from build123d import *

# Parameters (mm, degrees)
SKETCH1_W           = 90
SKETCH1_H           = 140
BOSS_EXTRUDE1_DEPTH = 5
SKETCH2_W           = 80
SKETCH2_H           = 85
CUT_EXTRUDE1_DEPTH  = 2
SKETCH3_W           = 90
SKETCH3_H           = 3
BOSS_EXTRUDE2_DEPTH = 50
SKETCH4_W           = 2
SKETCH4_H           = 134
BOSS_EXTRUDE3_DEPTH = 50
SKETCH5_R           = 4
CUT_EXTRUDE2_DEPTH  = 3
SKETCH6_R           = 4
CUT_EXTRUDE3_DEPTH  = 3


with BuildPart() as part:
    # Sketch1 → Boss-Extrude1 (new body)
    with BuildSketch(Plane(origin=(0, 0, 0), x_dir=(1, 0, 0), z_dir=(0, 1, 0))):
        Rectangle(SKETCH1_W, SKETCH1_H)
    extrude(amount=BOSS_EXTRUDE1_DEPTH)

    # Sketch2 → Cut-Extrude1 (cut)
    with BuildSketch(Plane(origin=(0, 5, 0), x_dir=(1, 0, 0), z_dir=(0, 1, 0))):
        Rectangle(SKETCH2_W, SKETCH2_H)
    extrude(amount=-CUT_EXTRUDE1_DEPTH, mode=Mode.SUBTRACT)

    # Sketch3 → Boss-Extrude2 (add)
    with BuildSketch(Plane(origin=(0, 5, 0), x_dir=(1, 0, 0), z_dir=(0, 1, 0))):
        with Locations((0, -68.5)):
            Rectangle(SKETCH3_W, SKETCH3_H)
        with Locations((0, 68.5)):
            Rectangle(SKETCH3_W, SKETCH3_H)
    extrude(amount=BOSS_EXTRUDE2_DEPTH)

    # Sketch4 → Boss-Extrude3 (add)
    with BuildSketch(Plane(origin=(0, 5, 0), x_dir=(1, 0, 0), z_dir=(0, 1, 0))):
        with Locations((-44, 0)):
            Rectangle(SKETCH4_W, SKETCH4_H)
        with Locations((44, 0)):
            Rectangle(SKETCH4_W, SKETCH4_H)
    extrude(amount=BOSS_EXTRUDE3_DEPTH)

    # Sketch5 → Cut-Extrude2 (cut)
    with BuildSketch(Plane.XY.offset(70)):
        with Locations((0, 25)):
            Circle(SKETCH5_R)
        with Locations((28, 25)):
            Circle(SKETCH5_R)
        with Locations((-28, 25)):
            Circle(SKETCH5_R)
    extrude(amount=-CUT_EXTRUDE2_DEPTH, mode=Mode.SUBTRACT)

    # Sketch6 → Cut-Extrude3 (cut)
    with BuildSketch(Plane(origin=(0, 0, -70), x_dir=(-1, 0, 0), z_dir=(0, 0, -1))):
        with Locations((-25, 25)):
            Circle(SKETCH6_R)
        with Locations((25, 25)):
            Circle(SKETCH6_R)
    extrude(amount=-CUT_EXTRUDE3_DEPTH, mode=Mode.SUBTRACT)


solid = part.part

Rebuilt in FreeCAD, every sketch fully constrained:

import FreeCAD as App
import Part
import Sketcher

V = App.Vector

doc = App.newDocument("Part")
body = doc.addObject("PartDesign::Body", "Body")

# Sketch on XZ plane
sketch1 = doc.addObject("Sketcher::SketchObject", "Sketch")
body.addObject(sketch1)
sketch1.AttachmentSupport = (doc.XZ_Plane, [""])
sketch1.MapMode = "FlatFace"
sketch1.addGeometry([
    Part.LineSegment(V(-45, -70, 0), V(-45, 70, 0)),
    Part.LineSegment(V(-45, 70, 0), V(45, 70, 0)),
    Part.LineSegment(V(45, 70, 0), V(45, -70, 0)),
    Part.LineSegment(V(45, -70, 0), V(-45, -70, 0)),
], False)
sketch1.addConstraint([
    Sketcher.Constraint("Coincident", 0, 2, 1, 1),
    Sketcher.Constraint("Coincident", 1, 2, 2, 1),
    Sketcher.Constraint("Coincident", 2, 2, 3, 1),
    Sketcher.Constraint("Coincident", 3, 2, 0, 1),
    Sketcher.Constraint("Vertical", 0),
    Sketcher.Constraint("Horizontal", 1),
    Sketcher.Constraint("Vertical", 2),
    Sketcher.Constraint("Horizontal", 3),
    Sketcher.Constraint("Symmetric", 0, 2, 2, 2, -1, 1),
    Sketcher.Constraint("DistanceX", 1, 1, 1, 2, 90.0),
    Sketcher.Constraint("DistanceY", 0, 1, 0, 2, 140.0),
])
pad1 = doc.addObject("PartDesign::Pad", "Pad")
body.addObject(pad1)
pad1.Profile = sketch1
pad1.Length = 5
pad1.Reversed = True

# Sketch on XZ plane
sketch2 = doc.addObject("Sketcher::SketchObject", "Sketch001")
body.addObject(sketch2)
sketch2.AttachmentSupport = (doc.XZ_Plane, [""])
sketch2.MapMode = "FlatFace"
sketch2.AttachmentOffset = App.Placement(V(0, 0, -5), App.Rotation())
sketch2.addGeometry([
    Part.LineSegment(V(-40, -42, 0), V(-40, 42, 0)),
    Part.LineSegment(V(-40, 42, 0), V(40, 42, 0)),
    Part.LineSegment(V(40, 42, 0), V(40, -42, 0)),
    Part.LineSegment(V(40, -42, 0), V(-40, -42, 0)),
], False)
sketch2.addConstraint([
    Sketcher.Constraint("Coincident", 0, 2, 1, 1),
    Sketcher.Constraint("Coincident", 1, 2, 2, 1),
    Sketcher.Constraint("Coincident", 2, 2, 3, 1),
    Sketcher.Constraint("Coincident", 3, 2, 0, 1),
    Sketcher.Constraint("Vertical", 0),
    Sketcher.Constraint("Horizontal", 1),
    Sketcher.Constraint("Vertical", 2),
    Sketcher.Constraint("Horizontal", 3),
    Sketcher.Constraint("Symmetric", 0, 2, 2, 2, -1, 1),
    Sketcher.Constraint("DistanceX", 1, 1, 1, 2, 80.0),
    Sketcher.Constraint("DistanceY", 0, 1, 0, 2, 85.0),
])
pocket1 = doc.addObject("PartDesign::Pocket", "Pocket")
body.addObject(pocket1)
pocket1.Profile = sketch2
pocket1.Length = 2
pocket1.Reversed = True

# Sketch on XZ plane
sketch3 = doc.addObject("Sketcher::SketchObject", "Sketch002")
body.addObject(sketch3)
sketch3.AttachmentSupport = (doc.XZ_Plane, [""])
sketch3.MapMode = "FlatFace"
sketch3.AttachmentOffset = App.Placement(V(0, 0, -5), App.Rotation())
sketch3.addGeometry([
    Part.LineSegment(V(-45, 67, 0), V(-45, 70, 0)),  # 0
    Part.LineSegment(V(-45, 70, 0), V(45, 70, 0)),  # 1
    Part.LineSegment(V(45, 70, 0), V(45, 67, 0)),  # 2
    Part.LineSegment(V(45, 67, 0), V(-45, 67, 0)),  # 3
    Part.LineSegment(V(-45, -70, 0), V(-45, -67, 0)),  # 4
    Part.LineSegment(V(-45, -67, 0), V(45, -67, 0)),  # 5
    Part.LineSegment(V(45, -67, 0), V(45, -70, 0)),  # 6
    Part.LineSegment(V(45, -70, 0), V(-45, -70, 0)),  # 7
], False)
sketch3.addConstraint([
    Sketcher.Constraint("Coincident", 0, 2, 1, 1),
    Sketcher.Constraint("Coincident", 1, 2, 2, 1),
    Sketcher.Constraint("Coincident", 2, 2, 3, 1),
    Sketcher.Constraint("Coincident", 3, 2, 0, 1),
    Sketcher.Constraint("Coincident", 4, 2, 5, 1),
    Sketcher.Constraint("Coincident", 5, 2, 6, 1),
    Sketcher.Constraint("Coincident", 6, 2, 7, 1),
    Sketcher.Constraint("Coincident", 7, 2, 4, 1),
    Sketcher.Constraint("Vertical", 0),
    Sketcher.Constraint("Horizontal", 1),
    Sketcher.Constraint("Vertical", 2),
    Sketcher.Constraint("Horizontal", 3),
    Sketcher.Constraint("Vertical", 4),
    Sketcher.Constraint("Horizontal", 5),
    Sketcher.Constraint("Vertical", 6),
    Sketcher.Constraint("Horizontal", 7),
    Sketcher.Constraint("Symmetric", 2, 2, 4, 2, -1, 1),
    Sketcher.Constraint("Symmetric", 0, 2, 6, 2, -1, 1),
    Sketcher.Constraint("Vertical", 3, 2, 4, 2),
    Sketcher.Constraint("DistanceX", 1, 1, 1, 2, 90.0),
    Sketcher.Constraint("DistanceY", 0, 1, 0, 2, 3.0),
    Sketcher.Constraint("DistanceY", -1, 1, 0, 2, 70.0),
])
pad2 = doc.addObject("PartDesign::Pad", "Pad001")
body.addObject(pad2)
pad2.Profile = sketch3
pad2.Length = 50
pad2.Reversed = True

# Sketch on XZ plane
sketch4 = doc.addObject("Sketcher::SketchObject", "Sketch003")
body.addObject(sketch4)
sketch4.AttachmentSupport = (doc.XZ_Plane, [""])
sketch4.MapMode = "FlatFace"
sketch4.AttachmentOffset = App.Placement(V(0, 0, -5), App.Rotation())
sketch4.addGeometry([
    Part.LineSegment(V(-45, -67, 0), V(-45, 67, 0)),  # 0
    Part.LineSegment(V(-45, 67, 0), V(-43, 67, 0)),  # 1
    Part.LineSegment(V(-43, 67, 0), V(-43, -67, 0)),  # 2
    Part.LineSegment(V(-43, -67, 0), V(-45, -67, 0)),  # 3
    Part.LineSegment(V(43, -67, 0), V(43, 67, 0)),  # 4
    Part.LineSegment(V(43, 67, 0), V(45, 67, 0)),  # 5
    Part.LineSegment(V(45, 67, 0), V(45, -67, 0)),  # 6
    Part.LineSegment(V(45, -67, 0), V(43, -67, 0)),  # 7
], False)
sketch4.addConstraint([
    Sketcher.Constraint("Coincident", 0, 2, 1, 1),
    Sketcher.Constraint("Coincident", 1, 2, 2, 1),
    Sketcher.Constraint("Coincident", 2, 2, 3, 1),
    Sketcher.Constraint("Coincident", 3, 2, 0, 1),
    Sketcher.Constraint("Coincident", 4, 2, 5, 1),
    Sketcher.Constraint("Coincident", 5, 2, 6, 1),
    Sketcher.Constraint("Coincident", 6, 2, 7, 1),
    Sketcher.Constraint("Coincident", 7, 2, 4, 1),
    Sketcher.Constraint("Vertical", 0),
    Sketcher.Constraint("Horizontal", 1),
    Sketcher.Constraint("Vertical", 2),
    Sketcher.Constraint("Horizontal", 3),
    Sketcher.Constraint("Vertical", 4),
    Sketcher.Constraint("Horizontal", 5),
    Sketcher.Constraint("Vertical", 6),
    Sketcher.Constraint("Horizontal", 7),
    Sketcher.Constraint("Symmetric", 2, 2, 4, 2, -1, 1),
    Sketcher.Constraint("Symmetric", 0, 2, 6, 2, -1, 1),
    Sketcher.Constraint("Horizontal", 1, 2, 4, 2),
    Sketcher.Constraint("DistanceX", 1, 1, 1, 2, 2.0),
    Sketcher.Constraint("DistanceY", 0, 1, 0, 2, 134.0),
    Sketcher.Constraint("DistanceX", 0, 2, -1, 1, 45.0),
])
pad3 = doc.addObject("PartDesign::Pad", "Pad002")
body.addObject(pad3)
pad3.Profile = sketch4
pad3.Length = 50
pad3.Reversed = True

# Sketch on XY plane
sketch5 = doc.addObject("Sketcher::SketchObject", "Sketch004")
body.addObject(sketch5)
sketch5.AttachmentSupport = (doc.XY_Plane, [""])
sketch5.MapMode = "FlatFace"
sketch5.AttachmentOffset = App.Placement(V(0, 0, 70), App.Rotation())
sketch5.addGeometry([
    Part.Circle(V(0, 25, 0), V(0, 0, 1), 4),
    Part.Circle(V(28, 25, 0), V(0, 0, 1), 4),
    Part.Circle(V(-28, 25, 0), V(0, 0, 1), 4),
], False)
sketch5.addConstraint([
    Sketcher.Constraint("Equal", 0, 1),
    Sketcher.Constraint("Equal", 1, 2),
    Sketcher.Constraint("Symmetric", 1, 3, 2, 3, -2),
    Sketcher.Constraint("PointOnObject", 0, 3, -2),
    Sketcher.Constraint("Horizontal", 0, 3, 1, 3),
    Sketcher.Constraint("Diameter", 0, 8.0),
    Sketcher.Constraint("DistanceY", -1, 1, 0, 3, 25.0),
    Sketcher.Constraint("DistanceX", -1, 1, 1, 3, 28.0),
])
pocket2 = doc.addObject("PartDesign::Pocket", "Pocket001")
body.addObject(pocket2)
pocket2.Profile = sketch5
pocket2.Length = 3

# Sketch on XY plane
sketch6 = doc.addObject("Sketcher::SketchObject", "Sketch005")
body.addObject(sketch6)
sketch6.AttachmentSupport = (doc.XY_Plane, [""])
sketch6.MapMode = "FlatFace"
sketch6.AttachmentOffset = App.Placement(V(0, 0, -70), App.Rotation())
sketch6.addGeometry([
    Part.Circle(V(25, 25, 0), V(0, 0, 1), 4),
    Part.Circle(V(-25, 25, 0), V(0, 0, 1), 4),
], False)
sketch6.addConstraint([
    Sketcher.Constraint("Equal", 0, 1),
    Sketcher.Constraint("Symmetric", 0, 3, 1, 3, -2),
    Sketcher.Constraint("Diameter", 0, 8.0),
    Sketcher.Constraint("DistanceX", -1, 1, 0, 3, 25.0),
    Sketcher.Constraint("DistanceY", -1, 1, 0, 3, 25.0),
])
pocket3 = doc.addObject("PartDesign::Pocket", "Pocket002")
body.addObject(pocket3)
pocket3.Profile = sketch6
pocket3.Length = 3
pocket3.Reversed = True

doc.recompute()
